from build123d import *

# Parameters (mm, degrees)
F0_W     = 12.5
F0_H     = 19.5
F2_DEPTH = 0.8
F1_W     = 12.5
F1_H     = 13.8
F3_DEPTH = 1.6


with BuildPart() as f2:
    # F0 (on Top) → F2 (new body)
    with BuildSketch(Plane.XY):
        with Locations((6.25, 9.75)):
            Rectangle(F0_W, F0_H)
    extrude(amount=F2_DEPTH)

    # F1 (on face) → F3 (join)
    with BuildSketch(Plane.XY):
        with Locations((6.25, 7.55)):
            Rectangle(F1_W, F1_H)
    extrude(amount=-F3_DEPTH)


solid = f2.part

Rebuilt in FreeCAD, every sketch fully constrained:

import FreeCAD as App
import Part
import Sketcher

V = App.Vector


def add_polygon(sketch, points):
    """Adds a closed chain of lines whose ends are joined by coincident constraints."""
    first, n = sketch.GeometryCount, len(points)
    for a, b in zip(points, points[1:] + points[:1]):
        sketch.addGeometry(Part.LineSegment(App.Vector(*a, 0), App.Vector(*b, 0)), False)
    for i in range(n):
        sketch.addConstraint(Sketcher.Constraint("Coincident", first + i, 2, first + (i + 1) % n, 1))

doc = App.newDocument("Part")
body = doc.addObject("PartDesign::Body", "Body")

sketch1 = doc.addObject("Sketcher::SketchObject", "Sketch")
body.addObject(sketch1)
sketch1.AttachmentSupport = (doc.XY_Plane, [""])
sketch1.MapMode = "FlatFace"
add_polygon(sketch1, [(0, 20), (0, 0), (12, 0), (12, 20)])
sketch1.addConstraint([
    Sketcher.Constraint("Vertical", 0),
    Sketcher.Constraint("Horizontal", 1),
    Sketcher.Constraint("Vertical", 2),
    Sketcher.Constraint("Horizontal", 3),
    Sketcher.Constraint("Coincident", 0, 2, -1, 1),
    Sketcher.Constraint("DistanceX", 1, 1, 1, 2, 12.5),
    Sketcher.Constraint("DistanceY", 0, 2, 0, 1, 19.5),
])
pad1 = doc.addObject("PartDesign::Pad", "Pad")
body.addObject(pad1)
pad1.Profile = sketch1
pad1.Length = 0.8

sketch2 = doc.addObject("Sketcher::SketchObject", "Sketch001")
body.addObject(sketch2)
sketch2.AttachmentSupport = (doc.XY_Plane, [""])
sketch2.MapMode = "FlatFace"
add_polygon(sketch2, [(0, 14), (0, 1), (12, 1), (12, 14)])
sketch2.addConstraint([
    Sketcher.Constraint("Vertical", 0),
    Sketcher.Constraint("Horizontal", 1),
    Sketcher.Constraint("Vertical", 2),
    Sketcher.Constraint("Horizontal", 3),
    Sketcher.Constraint("PointOnObject", 0, 2, -2),
    Sketcher.Constraint("DistanceX", 1, 1, 1, 2, 12.5),
    Sketcher.Constraint("DistanceY", 0, 2, 0, 1, 13.8),
    Sketcher.Constraint("DistanceY", -1, 1, 0, 2, 0.65),
])
pad2 = doc.addObject("PartDesign::Pad", "Pad001")
body.addObject(pad2)
pad2.Profile = sketch2
pad2.Length = 1.6
pad2.Reversed = True

doc.recompute()
